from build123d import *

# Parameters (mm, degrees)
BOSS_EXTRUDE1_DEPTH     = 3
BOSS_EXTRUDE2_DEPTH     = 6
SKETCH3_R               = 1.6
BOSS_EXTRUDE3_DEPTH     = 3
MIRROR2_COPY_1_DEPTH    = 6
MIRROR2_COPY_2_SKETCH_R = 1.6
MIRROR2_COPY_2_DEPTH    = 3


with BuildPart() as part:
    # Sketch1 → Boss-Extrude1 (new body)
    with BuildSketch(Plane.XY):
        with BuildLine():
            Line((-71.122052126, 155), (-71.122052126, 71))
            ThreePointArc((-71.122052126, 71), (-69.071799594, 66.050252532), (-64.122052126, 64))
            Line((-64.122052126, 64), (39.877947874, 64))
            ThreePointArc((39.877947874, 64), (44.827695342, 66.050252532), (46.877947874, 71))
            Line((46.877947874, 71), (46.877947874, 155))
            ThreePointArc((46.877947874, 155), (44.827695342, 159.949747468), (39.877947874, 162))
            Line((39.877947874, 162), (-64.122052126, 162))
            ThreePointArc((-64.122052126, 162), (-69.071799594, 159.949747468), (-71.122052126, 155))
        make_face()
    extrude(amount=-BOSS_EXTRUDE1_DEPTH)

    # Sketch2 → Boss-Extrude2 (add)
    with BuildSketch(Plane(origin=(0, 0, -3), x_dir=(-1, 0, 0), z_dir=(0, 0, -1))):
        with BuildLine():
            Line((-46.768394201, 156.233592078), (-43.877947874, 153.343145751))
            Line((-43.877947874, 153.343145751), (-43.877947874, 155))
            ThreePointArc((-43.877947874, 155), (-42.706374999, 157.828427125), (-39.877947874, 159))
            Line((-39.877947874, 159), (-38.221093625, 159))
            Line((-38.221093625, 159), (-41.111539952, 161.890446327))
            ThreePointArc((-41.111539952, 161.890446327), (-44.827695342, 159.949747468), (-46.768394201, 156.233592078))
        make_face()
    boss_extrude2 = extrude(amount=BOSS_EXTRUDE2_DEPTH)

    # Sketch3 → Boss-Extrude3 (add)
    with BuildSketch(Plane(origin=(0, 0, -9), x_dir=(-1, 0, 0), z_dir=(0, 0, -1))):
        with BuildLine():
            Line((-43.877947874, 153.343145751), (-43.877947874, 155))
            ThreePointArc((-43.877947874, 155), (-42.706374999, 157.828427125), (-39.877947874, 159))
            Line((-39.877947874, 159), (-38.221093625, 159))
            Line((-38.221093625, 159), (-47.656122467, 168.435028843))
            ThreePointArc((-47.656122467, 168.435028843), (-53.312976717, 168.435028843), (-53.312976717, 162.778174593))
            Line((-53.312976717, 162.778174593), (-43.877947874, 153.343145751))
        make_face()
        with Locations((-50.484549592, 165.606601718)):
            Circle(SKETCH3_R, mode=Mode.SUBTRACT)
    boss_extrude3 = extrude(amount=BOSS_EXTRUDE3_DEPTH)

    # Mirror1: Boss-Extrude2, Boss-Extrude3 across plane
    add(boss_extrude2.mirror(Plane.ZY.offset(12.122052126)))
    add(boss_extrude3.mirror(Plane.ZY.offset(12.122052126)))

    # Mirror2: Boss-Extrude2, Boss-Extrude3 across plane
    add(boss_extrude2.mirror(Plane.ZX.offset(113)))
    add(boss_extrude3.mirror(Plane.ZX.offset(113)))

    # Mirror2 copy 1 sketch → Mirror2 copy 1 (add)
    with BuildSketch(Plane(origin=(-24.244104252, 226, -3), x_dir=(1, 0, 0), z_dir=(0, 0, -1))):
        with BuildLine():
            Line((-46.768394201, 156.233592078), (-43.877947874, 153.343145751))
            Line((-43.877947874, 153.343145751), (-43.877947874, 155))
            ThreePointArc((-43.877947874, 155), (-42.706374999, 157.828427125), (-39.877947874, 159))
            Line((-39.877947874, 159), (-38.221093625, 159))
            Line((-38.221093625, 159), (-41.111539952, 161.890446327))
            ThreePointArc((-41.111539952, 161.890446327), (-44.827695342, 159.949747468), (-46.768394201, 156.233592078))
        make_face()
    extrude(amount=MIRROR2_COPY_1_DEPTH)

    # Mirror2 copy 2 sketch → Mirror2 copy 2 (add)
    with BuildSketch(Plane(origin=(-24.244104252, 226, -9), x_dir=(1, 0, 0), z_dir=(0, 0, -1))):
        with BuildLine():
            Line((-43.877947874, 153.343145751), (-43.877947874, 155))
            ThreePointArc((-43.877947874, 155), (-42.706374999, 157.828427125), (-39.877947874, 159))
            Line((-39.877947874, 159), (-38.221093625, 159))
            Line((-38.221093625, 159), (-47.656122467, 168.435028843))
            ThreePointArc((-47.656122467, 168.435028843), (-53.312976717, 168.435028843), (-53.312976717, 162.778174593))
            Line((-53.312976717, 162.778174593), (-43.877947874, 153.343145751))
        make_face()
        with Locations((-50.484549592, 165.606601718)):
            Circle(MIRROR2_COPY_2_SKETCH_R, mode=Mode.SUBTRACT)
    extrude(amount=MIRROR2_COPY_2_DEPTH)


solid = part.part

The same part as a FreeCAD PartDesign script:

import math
import FreeCAD as App
import Part
import Sketcher

V = App.Vector

doc = App.newDocument("Part")
body = doc.addObject("PartDesign::Body", "Body")

# Sketch on XY plane
sketch1 = body.newObject("Sketcher::SketchObject", "Sketch")
sketch1.AttachmentSupport = (doc.getObject("XY_Plane"), [""])
sketch1.MapMode = "FlatFace"
sketch1.addGeometry([
    Part.LineSegment(V(-71, 155, 0), V(-71, 71, 0)),  # 0
    Part.ArcOfCircle(Part.Circle(V(-64, 71, 0), V(0, 0, 1), 7), math.radians(-180), math.radians(-90)),  # 1
    Part.LineSegment(V(-64, 64, 0), V(40, 64, 0)),  # 2
    Part.ArcOfCircle(Part.Circle(V(40, 71, 0), V(0, 0, 1), 7), math.radians(-90), math.radians(0)),  # 3
    Part.LineSegment(V(47, 71, 0), V(47, 155, 0)),  # 4
    Part.ArcOfCircle(Part.Circle(V(40, 155, 0), V(0, 0, 1), 7), math.radians(0), math.radians(90)),  # 5
    Part.LineSegment(V(40, 162, 0), V(-64, 162, 0)),  # 6
    Part.ArcOfCircle(Part.Circle(V(-64, 155, 0), V(0, 0, 1), 7), math.radians(90), math.radians(180)),  # 7
], False)
sketch1.addConstraint([
    Sketcher.Constraint("Tangent", 0, 2, 1, 1),
    Sketcher.Constraint("Tangent", 1, 2, 2, 1),
    Sketcher.Constraint("Tangent", 2, 2, 3, 1),
    Sketcher.Constraint("Tangent", 3, 2, 4, 1),
    Sketcher.Constraint("Tangent", 4, 2, 5, 1),
    Sketcher.Constraint("Tangent", 5, 2, 6, 1),
    Sketcher.Constraint("Tangent", 6, 2, 7, 1),
    Sketcher.Constraint("Tangent", 7, 2, 0, 1),
    Sketcher.Constraint("Vertical", 0),
    Sketcher.Constraint("Horizontal", 2),
    Sketcher.Constraint("Vertical", 4),
    Sketcher.Constraint("Horizontal", 6),
    Sketcher.Constraint("Equal", 1, 3),
    Sketcher.Constraint("Equal", 3, 5),
    Sketcher.Constraint("Equal", 5, 7),
    Sketcher.Constraint("Radius", 1, 7.0),
    Sketcher.Constraint("DistanceX", 2, 1, 2, 2, 104.0),
    Sketcher.Constraint("DistanceY", 0, 2, 0, 1, 84.0),
    Sketcher.Constraint("DistanceY", -1, 1, 1, 3, 71.0),
    Sketcher.Constraint("DistanceX", 1, 3, -1, 1, 64.122052),
])
pad1 = body.newObject("PartDesign::Pad", "Pad")
pad1.Profile = sketch1
pad1.Length = 3
pad1.Reversed = True

# Sketch on XY plane
sketch2 = body.newObject("Sketcher::SketchObject", "Sketch001")
sketch2.AttachmentSupport = (doc.getObject("XY_Plane"), [""])
sketch2.MapMode = "FlatFace"
sketch2.AttachmentOffset = App.Placement(V(0, 0, -3), App.Rotation())
sketch2.addGeometry([
    Part.LineSegment(V(46.8, 156.2, 0), V(43.9, 153.3, 0)),  # 0
    Part.LineSegment(V(43.9, 153.3, 0), V(43.9, 155, 0)),  # 1
    Part.ArcOfCircle(Part.Circle(V(39.9, 155, 0), V(0, 0, 1), 4), math.radians(0), math.radians(90)),  # 2
    Part.LineSegment(V(39.9, 159, 0), V(38.2, 159, 0)),  # 3
    Part.LineSegment(V(38.2, 159, 0), V(41.1, 161.9, 0)),  # 4
    Part.ArcOfCircle(Part.Circle(V(39.9, 155, 0), V(0, 0, 1), 7), math.radians(10), math.radians(80)),  # 5
], False)
sketch2.addConstraint([
    Sketcher.Constraint("Coincident", 0, 2, 1, 1),
    Sketcher.Constraint("Tangent", 1, 2, 2, 1),
    Sketcher.Constraint("Tangent", 2, 2, 3, 1),
    Sketcher.Constraint("Coincident", 3, 2, 4, 1),
    Sketcher.Constraint("Coincident", 4, 2, 5, 2),
    Sketcher.Constraint("Coincident", 5, 1, 0, 1),
    Sketcher.Constraint("Vertical", 1),
    Sketcher.Constraint("Horizontal", 3),
    Sketcher.Constraint("Coincident", 5, 3, 2, 3),
    Sketcher.Constraint("Parallel", 0, 4),
    Sketcher.Constraint("Equal", 3, 1),
    Sketcher.Constraint("Equal", 0, 4),
    Sketcher.Constraint("Radius", 2, 4.0),
    Sketcher.Constraint("Radius", 5, 7.0),
    Sketcher.Constraint("DistanceY", -1, 1, 2, 3, 155.0),
    Sketcher.Constraint("Distance", 0, 4.087708),
    Sketcher.Constraint("DistanceX", -1, 1, 4, 2, 41.11154),
])
pad2 = body.newObject("PartDesign::Pad", "Pad001")
pad2.Profile = sketch2
pad2.Length = 6
pad2.Reversed = True

# Sketch on XY plane
sketch3 = body.newObject("Sketcher::SketchObject", "Sketch002")
sketch3.AttachmentSupport = (doc.getObject("XY_Plane"), [""])
sketch3.MapMode = "FlatFace"
sketch3.AttachmentOffset = App.Placement(V(0, 0, -9), App.Rotation())
sketch3.addGeometry([
    Part.LineSegment(V(43.9, 153.3, 0), V(43.9, 155, 0)),  # 0
    Part.ArcOfCircle(Part.Circle(V(39.9, 155, 0), V(0, 0, 1), 4), math.radians(0), math.radians(90)),  # 1
    Part.LineSegment(V(39.9, 159, 0), V(38.2, 159, 0)),  # 2
    Part.LineSegment(V(38.2, 159, 0), V(47.7, 168.4, 0)),  # 3
    Part.ArcOfCircle(Part.Circle(V(50.5, 165.6, 0), V(0, 0, 1), 4), math.radians(-45), math.radians(135)),  # 4
    Part.LineSegment(V(53.3, 162.8, 0), V(43.9, 153.3, 0)),  # 5
    Part.Circle(V(50.5, 165.6, 0), V(0, 0, 1), 1.6),  # 6
], False)
sketch3.addConstraint([
    Sketcher.Constraint("Tangent", 0, 2, 1, 1),
    Sketcher.Constraint("Tangent", 1, 2, 2, 1),
    Sketcher.Constraint("Coincident", 2, 2, 3, 1),
    Sketcher.Constraint("Tangent", 3, 2, 4, 2),
    Sketcher.Constraint("Tangent", 4, 1, 5, 1),
    Sketcher.Constraint("Coincident", 5, 2, 0, 1),
    Sketcher.Constraint("Vertical", 0),
    Sketcher.Constraint("Horizontal", 2),
    Sketcher.Constraint("Coincident", 6, 3, 4, 3),
    Sketcher.Constraint("Equal", 1, 4),
    Sketcher.Constraint("Parallel", 3, 5),
    Sketcher.Constraint("Equal", 2, 0),
    Sketcher.Constraint("Equal", 3, 5),
    Sketcher.Constraint("Radius", 1, 4.0),
    Sketcher.Constraint("Diameter", 6, 3.2),
    Sketcher.Constraint("DistanceY", -1, 1, 1, 3, 155.0),
    Sketcher.Constraint("DistanceY", -1, 1, 4, 3, 165.606602),
    Sketcher.Constraint("DistanceX", -1, 1, 4, 3, 50.48455),
])
pad3 = body.newObject("PartDesign::Pad", "Pad002")
pad3.Profile = sketch3
pad3.Length = 3
pad3.Reversed = True
doc.recompute()

datumplane = body.newObject("PartDesign::Plane", "DatumPlane")
datumplane.AttachmentSupport = (doc.getObject("YZ_Plane"), [""])
datumplane.MapMode = "FlatFace"
datumplane.AttachmentOffset = App.Placement(V(0, 0, -12.122052), App.Rotation())
mirrored = body.newObject("PartDesign::Mirrored", "Mirrored")
mirrored.Originals = [pad2, pad3]
mirrored.MirrorPlane = (datumplane, [""])
body.Tip = mirrored
doc.recompute()

datumplane2 = body.newObject("PartDesign::Plane", "DatumPlane001")
datumplane2.AttachmentSupport = (doc.getObject("XZ_Plane"), [""])
datumplane2.MapMode = "FlatFace"
datumplane2.AttachmentOffset = App.Placement(V(0, 0, -113), App.Rotation())
mirrored2 = body.newObject("PartDesign::Mirrored", "Mirrored001")
mirrored2.Originals = [pad2, pad3]
mirrored2.MirrorPlane = (datumplane2, [""])
body.Tip = mirrored2

# Sketch on XY plane
sketch4 = body.newObject("Sketcher::SketchObject", "Sketch003")
sketch4.AttachmentSupport = (doc.getObject("XY_Plane"), [""])
sketch4.MapMode = "FlatFace"
sketch4.AttachmentOffset = App.Placement(V(0, 0, -3), App.Rotation())
sketch4.addGeometry([
    Part.LineSegment(V(-71, 69.8, 0), V(-68.1, 72.7, 0)),  # 0
    Part.LineSegment(V(-68.1, 72.7, 0), V(-68.1, 71, 0)),  # 1
    Part.ArcOfCircle(Part.Circle(V(-64.1, 71, 0), V(0, 0, 1), 4), math.radians(180), math.radians(270)),  # 2
    Part.LineSegment(V(-64.1, 67, 0), V(-62.5, 67, 0)),  # 3
    Part.LineSegment(V(-62.5, 67, 0), V(-65.4, 64.1, 0)),  # 4
    Part.ArcOfCircle(Part.Circle(V(-64.1, 71, 0), V(0, 0, 1), 7), math.radians(-170), math.radians(-100)),  # 5
], False)
sketch4.addConstraint([
    Sketcher.Constraint("Coincident", 0, 2, 1, 1),
    Sketcher.Constraint("Tangent", 1, 2, 2, 1),
    Sketcher.Constraint("Tangent", 2, 2, 3, 1),
    Sketcher.Constraint("Coincident", 3, 2, 4, 1),
    Sketcher.Constraint("Coincident", 4, 2, 5, 2),
    Sketcher.Constraint("Coincident", 5, 1, 0, 1),
    Sketcher.Constraint("Vertical", 1),
    Sketcher.Constraint("Horizontal", 3),
    Sketcher.Constraint("Coincident", 5, 3, 2, 3),
    Sketcher.Constraint("Parallel", 0, 4),
    Sketcher.Constraint("Equal", 3, 1),
    Sketcher.Constraint("Equal", 0, 4),
    Sketcher.Constraint("Radius", 2, 4.0),
    Sketcher.Constraint("Radius", 5, 7.0),
    Sketcher.Constraint("DistanceY", -1, 1, 2, 3, 71.0),
    Sketcher.Constraint("DistanceX", 5, 1, -1, 1, 71.012498),
    Sketcher.Constraint("Distance", 0, 4.087708),
])
pad4 = body.newObject("PartDesign::Pad", "Pad003")
pad4.Profile = sketch4
pad4.Length = 6
pad4.Reversed = True

# Sketch on XY plane
sketch5 = body.newObject("Sketcher::SketchObject", "Sketch004")
sketch5.AttachmentSupport = (doc.getObject("XY_Plane"), [""])
sketch5.MapMode = "FlatFace"
sketch5.AttachmentOffset = App.Placement(V(0, 0, -9), App.Rotation())
sketch5.addGeometry([
    Part.LineSegment(V(-68.1, 72.7, 0), V(-68.1, 71, 0)),  # 0
    Part.ArcOfCircle(Part.Circle(V(-64.1, 71, 0), V(0, 0, 1), 4), math.radians(180), math.radians(270)),  # 1
    Part.LineSegment(V(-64.1, 67, 0), V(-62.5, 67, 0)),  # 2
    Part.LineSegment(V(-62.5, 67, 0), V(-71.9, 57.6, 0)),  # 3
    Part.ArcOfCircle(Part.Circle(V(-74.7, 60.4, 0), V(0, 0, 1), 4), math.radians(135), math.radians(315)),  # 4
    Part.LineSegment(V(-77.6, 63.2, 0), V(-68.1, 72.7, 0)),  # 5
    Part.Circle(V(-74.7, 60.4, 0), V(0, 0, 1), 1.6),  # 6
], False)
sketch5.addConstraint([
    Sketcher.Constraint("Tangent", 0, 2, 1, 1),
    Sketcher.Constraint("Tangent", 1, 2, 2, 1),
    Sketcher.Constraint("Coincident", 2, 2, 3, 1),
    Sketcher.Constraint("Tangent", 3, 2, 4, 2),
    Sketcher.Constraint("Tangent", 4, 1, 5, 1),
    Sketcher.Constraint("Coincident", 5, 2, 0, 1),
    Sketcher.Constraint("Vertical", 0),
    Sketcher.Constraint("Horizontal", 2),
    Sketcher.Constraint("Coincident", 6, 3, 4, 3),
    Sketcher.Constraint("Equal", 1, 4),
    Sketcher.Constraint("Parallel", 3, 5),
    Sketcher.Constraint("Equal", 2, 0),
    Sketcher.Constraint("Equal", 3, 5),
    Sketcher.Constraint("Radius", 1, 4.0),
    Sketcher.Constraint("Diameter", 6, 3.2),
    Sketcher.Constraint("DistanceY", -1, 1, 1, 3, 71.0),
    Sketcher.Constraint("DistanceY", -1, 1, 4, 3, 60.393398),
    Sketcher.Constraint("DistanceX", 4, 1, -1, 1, 77.557081),
])
pad5 = body.newObject("PartDesign::Pad", "Pad004")
pad5.Profile = sketch5
pad5.Length = 3
pad5.Reversed = True

doc.recompute()
